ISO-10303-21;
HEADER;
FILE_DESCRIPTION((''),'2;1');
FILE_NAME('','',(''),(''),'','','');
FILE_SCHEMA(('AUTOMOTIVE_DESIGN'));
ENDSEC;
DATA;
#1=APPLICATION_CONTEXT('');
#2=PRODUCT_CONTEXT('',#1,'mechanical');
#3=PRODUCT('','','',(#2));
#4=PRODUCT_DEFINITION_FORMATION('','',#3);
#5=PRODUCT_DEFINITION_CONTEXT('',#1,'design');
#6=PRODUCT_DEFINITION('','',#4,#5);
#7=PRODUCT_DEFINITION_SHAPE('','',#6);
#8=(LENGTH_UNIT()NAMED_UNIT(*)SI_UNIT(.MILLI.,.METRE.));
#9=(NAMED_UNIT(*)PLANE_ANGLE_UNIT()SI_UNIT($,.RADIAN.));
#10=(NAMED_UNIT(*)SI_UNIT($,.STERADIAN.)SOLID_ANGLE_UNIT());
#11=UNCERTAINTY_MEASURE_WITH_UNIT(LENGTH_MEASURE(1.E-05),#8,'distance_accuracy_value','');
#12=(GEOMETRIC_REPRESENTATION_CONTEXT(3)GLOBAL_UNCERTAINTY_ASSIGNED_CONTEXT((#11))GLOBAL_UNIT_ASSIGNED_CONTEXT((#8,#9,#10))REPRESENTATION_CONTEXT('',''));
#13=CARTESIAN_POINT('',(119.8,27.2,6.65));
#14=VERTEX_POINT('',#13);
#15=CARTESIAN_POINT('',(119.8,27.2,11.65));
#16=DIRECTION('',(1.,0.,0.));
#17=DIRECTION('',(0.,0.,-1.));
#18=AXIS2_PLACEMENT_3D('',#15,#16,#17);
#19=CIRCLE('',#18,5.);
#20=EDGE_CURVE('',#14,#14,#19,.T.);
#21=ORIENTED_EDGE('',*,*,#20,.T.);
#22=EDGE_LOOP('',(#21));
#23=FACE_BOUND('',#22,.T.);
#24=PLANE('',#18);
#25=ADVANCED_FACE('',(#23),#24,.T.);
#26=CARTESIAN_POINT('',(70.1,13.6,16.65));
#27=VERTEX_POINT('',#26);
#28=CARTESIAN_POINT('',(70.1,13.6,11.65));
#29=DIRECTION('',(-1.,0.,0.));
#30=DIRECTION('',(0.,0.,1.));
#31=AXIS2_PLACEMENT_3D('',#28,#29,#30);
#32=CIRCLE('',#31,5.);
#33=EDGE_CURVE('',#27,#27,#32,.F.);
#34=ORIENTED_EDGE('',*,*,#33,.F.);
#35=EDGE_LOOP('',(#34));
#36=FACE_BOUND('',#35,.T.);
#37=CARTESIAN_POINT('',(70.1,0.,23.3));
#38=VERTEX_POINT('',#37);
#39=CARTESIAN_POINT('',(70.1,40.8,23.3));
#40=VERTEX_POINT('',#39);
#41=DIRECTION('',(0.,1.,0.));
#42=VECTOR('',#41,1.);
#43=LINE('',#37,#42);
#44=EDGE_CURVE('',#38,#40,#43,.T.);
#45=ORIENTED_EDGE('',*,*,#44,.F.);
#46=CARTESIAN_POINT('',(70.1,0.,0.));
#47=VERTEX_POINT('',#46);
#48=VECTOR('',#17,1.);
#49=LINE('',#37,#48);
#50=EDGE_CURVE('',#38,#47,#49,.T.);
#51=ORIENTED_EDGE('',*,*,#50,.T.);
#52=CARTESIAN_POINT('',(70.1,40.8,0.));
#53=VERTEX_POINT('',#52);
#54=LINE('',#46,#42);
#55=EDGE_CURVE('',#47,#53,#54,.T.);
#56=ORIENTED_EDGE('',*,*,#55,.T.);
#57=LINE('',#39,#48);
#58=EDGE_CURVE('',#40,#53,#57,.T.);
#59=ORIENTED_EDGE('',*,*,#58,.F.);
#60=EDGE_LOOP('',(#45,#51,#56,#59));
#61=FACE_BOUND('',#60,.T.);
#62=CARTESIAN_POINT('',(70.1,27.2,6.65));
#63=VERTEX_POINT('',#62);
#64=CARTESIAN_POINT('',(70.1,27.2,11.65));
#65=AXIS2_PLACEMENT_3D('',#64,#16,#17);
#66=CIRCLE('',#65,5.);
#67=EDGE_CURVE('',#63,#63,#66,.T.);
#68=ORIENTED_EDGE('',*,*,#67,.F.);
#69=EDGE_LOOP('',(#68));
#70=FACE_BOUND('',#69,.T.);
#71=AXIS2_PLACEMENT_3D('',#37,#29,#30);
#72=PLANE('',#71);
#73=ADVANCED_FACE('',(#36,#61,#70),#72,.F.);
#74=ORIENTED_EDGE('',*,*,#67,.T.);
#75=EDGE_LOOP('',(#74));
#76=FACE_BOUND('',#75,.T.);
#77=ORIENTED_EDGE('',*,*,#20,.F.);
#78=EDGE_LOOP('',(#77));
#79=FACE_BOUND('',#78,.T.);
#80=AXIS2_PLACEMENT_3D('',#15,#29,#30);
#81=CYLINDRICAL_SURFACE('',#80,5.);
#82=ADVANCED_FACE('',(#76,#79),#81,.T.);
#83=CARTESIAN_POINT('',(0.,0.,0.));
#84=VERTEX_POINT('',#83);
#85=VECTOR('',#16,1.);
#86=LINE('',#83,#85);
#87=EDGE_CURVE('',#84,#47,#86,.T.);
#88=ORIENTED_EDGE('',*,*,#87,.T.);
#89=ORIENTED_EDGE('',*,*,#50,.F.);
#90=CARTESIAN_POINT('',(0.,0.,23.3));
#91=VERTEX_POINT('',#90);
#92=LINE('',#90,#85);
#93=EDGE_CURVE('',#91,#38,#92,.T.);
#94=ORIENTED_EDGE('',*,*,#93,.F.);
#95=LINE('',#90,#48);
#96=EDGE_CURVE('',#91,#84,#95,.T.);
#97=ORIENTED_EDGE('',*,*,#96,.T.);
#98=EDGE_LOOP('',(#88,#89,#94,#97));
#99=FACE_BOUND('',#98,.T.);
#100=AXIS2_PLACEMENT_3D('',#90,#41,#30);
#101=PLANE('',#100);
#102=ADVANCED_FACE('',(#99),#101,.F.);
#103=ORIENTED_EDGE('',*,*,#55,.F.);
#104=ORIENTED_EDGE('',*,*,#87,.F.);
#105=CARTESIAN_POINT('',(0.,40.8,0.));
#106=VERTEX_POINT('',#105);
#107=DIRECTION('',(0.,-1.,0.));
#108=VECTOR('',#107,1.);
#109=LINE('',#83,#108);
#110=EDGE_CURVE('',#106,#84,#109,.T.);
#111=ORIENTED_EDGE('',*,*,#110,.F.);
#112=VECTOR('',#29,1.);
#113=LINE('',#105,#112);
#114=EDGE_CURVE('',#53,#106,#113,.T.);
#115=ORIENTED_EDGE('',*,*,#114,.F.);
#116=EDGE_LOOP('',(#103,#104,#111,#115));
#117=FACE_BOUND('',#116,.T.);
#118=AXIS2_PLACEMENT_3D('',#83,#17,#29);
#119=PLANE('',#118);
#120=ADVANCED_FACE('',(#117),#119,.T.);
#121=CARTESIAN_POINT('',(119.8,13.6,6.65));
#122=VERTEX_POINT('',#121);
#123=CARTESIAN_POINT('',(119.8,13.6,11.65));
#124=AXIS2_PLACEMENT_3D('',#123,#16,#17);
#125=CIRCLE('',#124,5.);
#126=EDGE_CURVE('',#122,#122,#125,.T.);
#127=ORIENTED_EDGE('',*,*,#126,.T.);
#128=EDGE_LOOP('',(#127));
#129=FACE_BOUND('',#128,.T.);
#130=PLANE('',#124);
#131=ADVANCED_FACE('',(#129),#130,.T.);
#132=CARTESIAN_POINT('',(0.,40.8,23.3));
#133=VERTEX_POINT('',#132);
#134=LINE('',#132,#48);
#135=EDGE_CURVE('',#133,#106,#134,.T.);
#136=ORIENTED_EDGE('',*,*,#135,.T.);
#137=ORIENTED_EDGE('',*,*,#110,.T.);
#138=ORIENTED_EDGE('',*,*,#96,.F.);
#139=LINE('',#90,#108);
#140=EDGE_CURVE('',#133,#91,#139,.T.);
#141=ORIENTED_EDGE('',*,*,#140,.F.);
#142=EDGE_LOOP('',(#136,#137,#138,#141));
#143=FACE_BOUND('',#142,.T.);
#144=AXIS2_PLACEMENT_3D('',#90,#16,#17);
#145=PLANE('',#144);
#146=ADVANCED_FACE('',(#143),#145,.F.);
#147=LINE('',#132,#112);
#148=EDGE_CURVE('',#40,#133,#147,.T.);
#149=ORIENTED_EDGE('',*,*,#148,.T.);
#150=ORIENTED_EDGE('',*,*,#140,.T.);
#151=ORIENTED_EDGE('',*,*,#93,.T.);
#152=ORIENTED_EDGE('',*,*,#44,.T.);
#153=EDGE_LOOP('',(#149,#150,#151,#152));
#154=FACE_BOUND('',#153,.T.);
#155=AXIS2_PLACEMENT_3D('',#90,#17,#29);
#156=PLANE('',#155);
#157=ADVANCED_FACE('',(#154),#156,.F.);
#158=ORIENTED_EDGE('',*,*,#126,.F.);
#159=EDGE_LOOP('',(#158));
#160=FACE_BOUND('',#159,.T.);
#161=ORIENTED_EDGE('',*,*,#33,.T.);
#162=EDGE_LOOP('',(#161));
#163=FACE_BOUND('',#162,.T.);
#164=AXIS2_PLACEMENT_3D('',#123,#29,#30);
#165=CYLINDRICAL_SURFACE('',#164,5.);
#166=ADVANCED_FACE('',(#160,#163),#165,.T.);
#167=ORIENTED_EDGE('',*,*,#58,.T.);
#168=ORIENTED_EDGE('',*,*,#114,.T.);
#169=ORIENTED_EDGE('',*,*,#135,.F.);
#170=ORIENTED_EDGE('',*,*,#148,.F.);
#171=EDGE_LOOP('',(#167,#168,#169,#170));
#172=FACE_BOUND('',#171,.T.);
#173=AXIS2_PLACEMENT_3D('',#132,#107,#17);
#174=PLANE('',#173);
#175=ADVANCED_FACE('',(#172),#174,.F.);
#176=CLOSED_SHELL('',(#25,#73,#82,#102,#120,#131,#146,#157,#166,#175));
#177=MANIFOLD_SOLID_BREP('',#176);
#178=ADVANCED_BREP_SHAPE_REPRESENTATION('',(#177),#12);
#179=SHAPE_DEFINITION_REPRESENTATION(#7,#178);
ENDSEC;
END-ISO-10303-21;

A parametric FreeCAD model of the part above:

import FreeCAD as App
import Part
import Sketcher
from FreeCAD import Vector
Q = App.Units.Quantity


def add_polygon(sketch, points):
    """Adds a closed chain of lines whose ends are joined by coincident constraints."""
    first, n = sketch.GeometryCount, len(points)
    for a, b in zip(points, points[1:] + points[:1]):
        sketch.addGeometry(Part.LineSegment(App.Vector(*a, 0), App.Vector(*b, 0)), False)
    for i in range(n):
        sketch.addConstraint(Sketcher.Constraint("Coincident", first + i, 2, first + (i + 1) % n, 1))

doc = App.newDocument("Part")
params = doc.addObject("Spreadsheet::Sheet", "Params")
for row, (alias, value) in enumerate([
    ("sketch1_width", "70.1 mm"),
    ("sketch1_height", "40.8 mm"),
    ("pad1_length", "23.3 mm"),
    ("sketch2_diameter", "10 mm"),
    ("pad2_length", "49.7 mm"),
], start=1):
    params.set(f"A{row}", alias)
    params.set(f"B{row}", "=" + value)
    params.setAlias(f"B{row}", alias)

body = doc.addObject("PartDesign::Body", "Body")

sketch1 = body.newObject("Sketcher::SketchObject", "Sketch")
sketch1.AttachmentSupport = (doc.getObject("XY_Plane"), [""])
sketch1.MapMode = "FlatFace"
add_polygon(sketch1, [(0, 40.8), (0, 0), (70.1, 0), (70.1, 40.8)])
sketch1.addConstraint([
    Sketcher.Constraint("Vertical", 0),
    Sketcher.Constraint("Horizontal", 1),
    Sketcher.Constraint("Vertical", 2),
    Sketcher.Constraint("Horizontal", 3),
    Sketcher.Constraint("Coincident", 0, 2, -1, 1),
    Sketcher.Constraint("DistanceX", 1, 1, 1, 2, Q("70.1 mm")),
    Sketcher.Constraint("DistanceY", 0, 2, 0, 1, Q("40.8 mm")),
])
sketch1.setExpression("Constraints[9]", "Params.sketch1_width")
sketch1.setExpression("Constraints[10]", "Params.sketch1_height")
pad1 = body.newObject("PartDesign::Pad", "Pad")
pad1.Profile = sketch1
pad1.setExpression("Length", "Params.pad1_length")

sketch2 = body.newObject("Sketcher::SketchObject", "Sketch001")
sketch2.AttachmentSupport = (doc.getObject("YZ_Plane"), [""])
sketch2.MapMode = "FlatFace"
sketch2.AttachmentOffset = App.Placement(Vector(0, 0, 70.1), App.Rotation())
sketch2.addGeometry([
    Part.Circle(Vector(27.2, 11.65, 0), Vector(0, 0, 1), 5),
    Part.Circle(Vector(13.6, 11.65, 0), Vector(0, 0, 1), 5),
], False)
sketch2.addConstraint([
    Sketcher.Constraint("Equal", 0, 1),
    Sketcher.Constraint("Horizontal", 0, 3, 1, 3),
    Sketcher.Constraint("Diameter", 0, Q("10 mm")),
    Sketcher.Constraint("DistanceX", -1, 1, 0, 3, Q("27.2 mm")),
    Sketcher.Constraint("DistanceX", -1, 1, 1, 3, Q("13.6 mm")),
    Sketcher.Constraint("DistanceY", -1, 1, 0, 3, Q("11.65 mm")),
])
sketch2.setExpression("Constraints[2]", "Params.sketch2_diameter")
pad2 = body.newObject("PartDesign::Pad", "Pad001")
pad2.Profile = sketch2
pad2.setExpression("Length", "Params.pad2_length")

doc.recompute()
